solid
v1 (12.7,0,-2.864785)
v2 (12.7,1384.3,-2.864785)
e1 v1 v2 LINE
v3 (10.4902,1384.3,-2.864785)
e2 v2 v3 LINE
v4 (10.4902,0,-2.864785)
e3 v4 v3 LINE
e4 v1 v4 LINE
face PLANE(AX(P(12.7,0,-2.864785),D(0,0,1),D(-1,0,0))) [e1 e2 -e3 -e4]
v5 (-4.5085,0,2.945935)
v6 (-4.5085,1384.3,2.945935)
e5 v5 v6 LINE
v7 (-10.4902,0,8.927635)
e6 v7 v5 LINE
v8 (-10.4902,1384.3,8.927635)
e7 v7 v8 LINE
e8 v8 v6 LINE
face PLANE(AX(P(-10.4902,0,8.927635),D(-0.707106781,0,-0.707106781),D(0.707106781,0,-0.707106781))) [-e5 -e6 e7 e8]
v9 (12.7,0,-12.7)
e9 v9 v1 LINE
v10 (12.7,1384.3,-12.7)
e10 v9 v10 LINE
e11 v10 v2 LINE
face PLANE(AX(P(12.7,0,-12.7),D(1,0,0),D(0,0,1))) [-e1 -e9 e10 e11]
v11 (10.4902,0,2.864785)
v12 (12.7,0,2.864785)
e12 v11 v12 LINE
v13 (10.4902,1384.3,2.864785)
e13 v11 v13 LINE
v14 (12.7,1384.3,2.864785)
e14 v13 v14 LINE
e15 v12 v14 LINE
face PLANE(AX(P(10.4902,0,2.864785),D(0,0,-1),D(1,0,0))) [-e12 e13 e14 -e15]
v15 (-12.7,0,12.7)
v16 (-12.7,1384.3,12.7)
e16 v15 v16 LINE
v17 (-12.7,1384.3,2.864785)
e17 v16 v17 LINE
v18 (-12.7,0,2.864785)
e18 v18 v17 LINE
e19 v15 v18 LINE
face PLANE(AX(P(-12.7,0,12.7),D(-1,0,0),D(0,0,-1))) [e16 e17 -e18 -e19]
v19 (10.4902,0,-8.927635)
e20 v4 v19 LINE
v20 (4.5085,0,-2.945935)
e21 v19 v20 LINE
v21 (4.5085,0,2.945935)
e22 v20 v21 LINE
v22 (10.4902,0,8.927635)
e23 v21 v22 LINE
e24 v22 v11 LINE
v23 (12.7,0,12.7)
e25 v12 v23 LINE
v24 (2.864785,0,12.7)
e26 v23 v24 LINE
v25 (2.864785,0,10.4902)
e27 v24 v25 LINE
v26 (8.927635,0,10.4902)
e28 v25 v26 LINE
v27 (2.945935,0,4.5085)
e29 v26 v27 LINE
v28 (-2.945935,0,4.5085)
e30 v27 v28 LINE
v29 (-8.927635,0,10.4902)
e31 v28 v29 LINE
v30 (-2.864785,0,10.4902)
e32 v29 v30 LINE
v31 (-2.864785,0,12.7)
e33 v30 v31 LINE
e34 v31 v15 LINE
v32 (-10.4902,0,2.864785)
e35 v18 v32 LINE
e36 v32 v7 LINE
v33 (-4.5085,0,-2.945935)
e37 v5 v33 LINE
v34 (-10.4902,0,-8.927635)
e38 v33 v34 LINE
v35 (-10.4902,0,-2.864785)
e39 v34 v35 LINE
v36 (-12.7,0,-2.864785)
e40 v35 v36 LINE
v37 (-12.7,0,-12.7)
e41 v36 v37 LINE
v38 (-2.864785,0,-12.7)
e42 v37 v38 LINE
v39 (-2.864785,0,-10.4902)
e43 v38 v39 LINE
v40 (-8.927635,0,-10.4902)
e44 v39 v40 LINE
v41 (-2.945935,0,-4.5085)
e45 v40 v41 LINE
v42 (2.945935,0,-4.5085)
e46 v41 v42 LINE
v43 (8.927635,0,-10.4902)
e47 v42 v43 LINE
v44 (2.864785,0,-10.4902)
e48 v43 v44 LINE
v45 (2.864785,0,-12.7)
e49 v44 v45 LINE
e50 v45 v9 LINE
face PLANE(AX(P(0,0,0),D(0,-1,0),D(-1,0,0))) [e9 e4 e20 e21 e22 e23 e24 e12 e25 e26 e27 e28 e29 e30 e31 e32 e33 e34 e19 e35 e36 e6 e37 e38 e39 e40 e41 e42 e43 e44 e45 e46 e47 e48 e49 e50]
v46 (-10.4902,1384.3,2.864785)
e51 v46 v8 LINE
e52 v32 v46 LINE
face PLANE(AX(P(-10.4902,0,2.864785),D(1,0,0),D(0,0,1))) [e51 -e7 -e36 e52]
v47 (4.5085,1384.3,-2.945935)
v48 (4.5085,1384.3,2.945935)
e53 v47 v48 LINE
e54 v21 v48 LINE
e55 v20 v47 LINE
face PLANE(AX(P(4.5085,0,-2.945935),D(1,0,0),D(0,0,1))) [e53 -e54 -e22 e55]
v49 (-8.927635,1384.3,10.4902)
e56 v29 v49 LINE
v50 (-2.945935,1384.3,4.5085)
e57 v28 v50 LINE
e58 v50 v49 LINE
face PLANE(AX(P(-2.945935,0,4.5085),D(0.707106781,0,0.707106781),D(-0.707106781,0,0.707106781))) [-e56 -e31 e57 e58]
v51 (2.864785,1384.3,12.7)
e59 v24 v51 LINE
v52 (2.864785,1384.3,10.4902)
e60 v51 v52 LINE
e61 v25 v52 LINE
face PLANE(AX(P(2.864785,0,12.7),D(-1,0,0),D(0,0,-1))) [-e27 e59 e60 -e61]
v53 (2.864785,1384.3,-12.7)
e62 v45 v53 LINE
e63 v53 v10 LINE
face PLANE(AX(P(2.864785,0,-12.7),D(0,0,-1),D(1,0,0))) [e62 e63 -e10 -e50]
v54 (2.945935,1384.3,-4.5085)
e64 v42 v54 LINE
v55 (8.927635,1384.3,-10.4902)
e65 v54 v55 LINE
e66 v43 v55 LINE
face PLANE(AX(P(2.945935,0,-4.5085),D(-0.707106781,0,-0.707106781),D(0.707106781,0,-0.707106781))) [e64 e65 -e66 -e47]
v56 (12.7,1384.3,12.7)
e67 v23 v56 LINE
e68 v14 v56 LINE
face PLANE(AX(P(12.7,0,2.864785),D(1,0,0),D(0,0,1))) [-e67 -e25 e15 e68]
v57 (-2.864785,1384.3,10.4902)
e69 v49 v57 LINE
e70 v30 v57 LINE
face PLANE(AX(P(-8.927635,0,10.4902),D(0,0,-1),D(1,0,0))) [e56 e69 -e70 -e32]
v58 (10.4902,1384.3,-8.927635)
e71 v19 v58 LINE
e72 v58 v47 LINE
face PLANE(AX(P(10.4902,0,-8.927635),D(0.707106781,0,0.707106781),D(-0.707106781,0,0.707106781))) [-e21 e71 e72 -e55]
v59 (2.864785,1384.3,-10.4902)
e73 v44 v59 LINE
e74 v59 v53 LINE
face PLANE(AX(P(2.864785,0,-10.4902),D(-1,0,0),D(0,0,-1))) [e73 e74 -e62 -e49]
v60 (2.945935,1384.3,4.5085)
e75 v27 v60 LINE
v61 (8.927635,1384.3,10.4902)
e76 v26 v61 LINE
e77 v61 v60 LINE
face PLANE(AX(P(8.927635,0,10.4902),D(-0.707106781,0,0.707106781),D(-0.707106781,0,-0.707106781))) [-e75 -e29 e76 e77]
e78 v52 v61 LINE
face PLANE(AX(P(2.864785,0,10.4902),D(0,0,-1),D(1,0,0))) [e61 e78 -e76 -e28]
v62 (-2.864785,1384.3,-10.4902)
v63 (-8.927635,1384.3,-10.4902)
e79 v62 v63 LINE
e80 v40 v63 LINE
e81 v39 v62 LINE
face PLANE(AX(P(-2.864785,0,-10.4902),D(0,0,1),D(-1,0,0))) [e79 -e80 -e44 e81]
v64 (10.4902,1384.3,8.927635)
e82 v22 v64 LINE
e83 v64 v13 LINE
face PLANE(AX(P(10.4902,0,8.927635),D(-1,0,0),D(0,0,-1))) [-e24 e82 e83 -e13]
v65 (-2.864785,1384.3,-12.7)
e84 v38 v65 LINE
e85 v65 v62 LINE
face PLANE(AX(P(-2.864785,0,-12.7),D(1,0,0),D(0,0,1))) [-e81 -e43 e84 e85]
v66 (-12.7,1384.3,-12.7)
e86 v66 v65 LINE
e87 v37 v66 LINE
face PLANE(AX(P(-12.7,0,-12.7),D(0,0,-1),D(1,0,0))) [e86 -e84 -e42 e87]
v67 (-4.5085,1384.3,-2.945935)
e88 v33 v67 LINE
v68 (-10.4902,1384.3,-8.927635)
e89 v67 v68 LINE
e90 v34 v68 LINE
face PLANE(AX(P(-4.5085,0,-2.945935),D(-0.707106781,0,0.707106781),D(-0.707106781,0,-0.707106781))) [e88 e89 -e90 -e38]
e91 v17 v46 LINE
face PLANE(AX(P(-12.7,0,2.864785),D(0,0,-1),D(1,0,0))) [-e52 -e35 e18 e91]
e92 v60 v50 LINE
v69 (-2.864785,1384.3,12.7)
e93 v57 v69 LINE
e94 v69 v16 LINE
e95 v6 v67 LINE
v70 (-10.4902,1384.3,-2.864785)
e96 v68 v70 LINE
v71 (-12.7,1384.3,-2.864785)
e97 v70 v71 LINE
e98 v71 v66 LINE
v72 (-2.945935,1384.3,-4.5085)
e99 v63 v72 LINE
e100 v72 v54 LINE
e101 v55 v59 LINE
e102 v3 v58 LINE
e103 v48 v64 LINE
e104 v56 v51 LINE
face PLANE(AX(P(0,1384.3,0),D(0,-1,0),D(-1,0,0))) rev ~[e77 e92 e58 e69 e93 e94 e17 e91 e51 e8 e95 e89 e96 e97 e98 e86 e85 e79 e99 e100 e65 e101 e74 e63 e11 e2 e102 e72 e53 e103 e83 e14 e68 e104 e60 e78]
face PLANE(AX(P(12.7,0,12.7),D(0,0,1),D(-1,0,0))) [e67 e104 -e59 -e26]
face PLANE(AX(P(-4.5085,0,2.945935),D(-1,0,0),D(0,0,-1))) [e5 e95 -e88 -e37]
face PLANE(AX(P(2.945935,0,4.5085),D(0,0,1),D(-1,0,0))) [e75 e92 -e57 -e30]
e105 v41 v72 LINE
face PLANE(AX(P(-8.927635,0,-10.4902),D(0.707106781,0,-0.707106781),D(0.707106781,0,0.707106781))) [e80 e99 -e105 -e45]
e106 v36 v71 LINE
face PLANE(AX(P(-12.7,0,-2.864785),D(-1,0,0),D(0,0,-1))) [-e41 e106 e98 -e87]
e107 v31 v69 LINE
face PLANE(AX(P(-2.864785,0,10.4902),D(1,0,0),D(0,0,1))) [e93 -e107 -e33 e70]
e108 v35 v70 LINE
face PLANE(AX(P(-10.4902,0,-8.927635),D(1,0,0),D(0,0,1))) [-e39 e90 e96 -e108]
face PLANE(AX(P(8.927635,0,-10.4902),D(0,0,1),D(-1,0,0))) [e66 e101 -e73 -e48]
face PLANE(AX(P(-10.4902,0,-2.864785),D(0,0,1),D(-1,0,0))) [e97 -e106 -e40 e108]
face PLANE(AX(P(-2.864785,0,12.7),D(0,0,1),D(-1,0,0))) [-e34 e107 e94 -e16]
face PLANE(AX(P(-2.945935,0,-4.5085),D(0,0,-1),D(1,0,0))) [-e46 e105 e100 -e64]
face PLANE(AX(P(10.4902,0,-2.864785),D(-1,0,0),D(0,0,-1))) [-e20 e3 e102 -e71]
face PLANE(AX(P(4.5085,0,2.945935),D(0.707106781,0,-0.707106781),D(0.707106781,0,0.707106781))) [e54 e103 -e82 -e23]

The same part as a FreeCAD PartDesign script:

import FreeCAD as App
import Part
import Sketcher
Q = App.Units.Quantity


def add_polygon(sketch, points):
    """Adds a closed chain of lines whose ends are joined by coincident constraints."""
    first, n = sketch.GeometryCount, len(points)
    for a, b in zip(points, points[1:] + points[:1]):
        sketch.addGeometry(Part.LineSegment(App.Vector(*a, 0), App.Vector(*b, 0)), False)
    for i in range(n):
        sketch.addConstraint(Sketcher.Constraint("Coincident", first + i, 2, first + (i + 1) % n, 1))

doc = App.newDocument("Part")
body = doc.addObject("PartDesign::Body", "Body")

# Sketch on XZ plane
sketch1 = doc.addObject("Sketcher::SketchObject", "Sketch")
body.addObject(sketch1)
sketch1.AttachmentSupport = (doc.XZ_Plane, [""])
sketch1.MapMode = "FlatFace"
add_polygon(sketch1, [(-2.864785, -12.7), (-12.7, -12.7), (-12.7, -2.864785), (-10.4902, -2.864785), (-10.4902, -8.927635), (-4.5085, -2.945935), (-4.5085, 2.945935), (-10.4902, 8.927635), (-10.4902, 2.864785), (-12.7, 2.864785), (-12.7, 12.7), (-2.864785, 12.7), (-2.864785, 10.4902), (-8.927635, 10.4902), (-2.945935, 4.5085), (2.945935, 4.5085), (8.927635, 10.4902), (2.864785, 10.4902), (2.864785, 12.7), (12.7, 12.7), (12.7, 2.864785), (10.4902, 2.864785), (10.4902, 8.927635), (4.5085, 2.945935), (4.5085, -2.945935), (10.4902, -8.927635), (10.4902, -2.864785), (12.7, -2.864785), (12.7, -12.7), (2.864785, -12.7), (2.864785, -10.4902), (8.927635, -10.4902), (2.945935, -4.5085), (-2.945935, -4.5085), (-8.927635, -10.4902), (-2.864785, -10.4902)])  # lines 0-35
sketch1.addConstraint(Sketcher.Constraint("Horizontal", 0))
sketch1.addConstraint(Sketcher.Constraint("Vertical", 1))
sketch1.addConstraint(Sketcher.Constraint("Horizontal", 2))
sketch1.addConstraint(Sketcher.Constraint("Vertical", 3))
sketch1.addConstraint(Sketcher.Constraint("Vertical", 5))
sketch1.addConstraint(Sketcher.Constraint("Vertical", 7))
sketch1.addConstraint(Sketcher.Constraint("Horizontal", 8))
sketch1.addConstraint(Sketcher.Constraint("Vertical", 9))
sketch1.addConstraint(Sketcher.Constraint("Horizontal", 10))
sketch1.addConstraint(Sketcher.Constraint("Vertical", 11))
sketch1.addConstraint(Sketcher.Constraint("Horizontal", 12))
sketch1.addConstraint(Sketcher.Constraint("Horizontal", 14))
sketch1.addConstraint(Sketcher.Constraint("Horizontal", 16))
sketch1.addConstraint(Sketcher.Constraint("Vertical", 17))
sketch1.addConstraint(Sketcher.Constraint("Horizontal", 18))
sketch1.addConstraint(Sketcher.Constraint("Vertical", 19))
sketch1.addConstraint(Sketcher.Constraint("Horizontal", 20))
sketch1.addConstraint(Sketcher.Constraint("Vertical", 21))
sketch1.addConstraint(Sketcher.Constraint("Vertical", 23))
sketch1.addConstraint(Sketcher.Constraint("Vertical", 25))
sketch1.addConstraint(Sketcher.Constraint("Horizontal", 26))
sketch1.addConstraint(Sketcher.Constraint("Vertical", 27))
sketch1.addConstraint(Sketcher.Constraint("Horizontal", 28))
sketch1.addConstraint(Sketcher.Constraint("Vertical", 29))
sketch1.addConstraint(Sketcher.Constraint("Horizontal", 30))
sketch1.addConstraint(Sketcher.Constraint("Horizontal", 32))
sketch1.addConstraint(Sketcher.Constraint("Horizontal", 34))
sketch1.addConstraint(Sketcher.Constraint("Vertical", 35))
sketch1.addConstraint(Sketcher.Constraint("Symmetric", 0, 2, 18, 2, -1, 1))
sketch1.addConstraint(Sketcher.Constraint("Symmetric", 2, 2, 20, 2, -1, 1))
sketch1.addConstraint(Sketcher.Constraint("Symmetric", 4, 2, 22, 2, -1, 1))
sketch1.addConstraint(Sketcher.Constraint("Symmetric", 6, 2, 24, 2, -1, 1))
sketch1.addConstraint(Sketcher.Constraint("Symmetric", 8, 2, 26, 2, -1, 1))
sketch1.addConstraint(Sketcher.Constraint("Symmetric", 10, 2, 28, 2, -1, 1))
sketch1.addConstraint(Sketcher.Constraint("Symmetric", 12, 2, 30, 2, -1, 1))
sketch1.addConstraint(Sketcher.Constraint("Symmetric", 13, 2, 31, 2, -1, 1))
sketch1.addConstraint(Sketcher.Constraint("Symmetric", 15, 2, 33, 2, -1, 1))
sketch1.addConstraint(Sketcher.Constraint("Symmetric", 12, 2, 15, 2, -2))
sketch1.addConstraint(Sketcher.Constraint("Symmetric", 10, 2, 17, 2, -2))
sketch1.addConstraint(Sketcher.Constraint("Symmetric", 8, 2, 19, 2, -2))
sketch1.addConstraint(Sketcher.Constraint("Symmetric", 6, 2, 21, 2, -2))
sketch1.addConstraint(Sketcher.Constraint("Perpendicular", 4, 6))
sketch1.addConstraint(Sketcher.Constraint("Parallel", 6, 13))
sketch1.addConstraint(Sketcher.Constraint("Perpendicular", 13, 15))
sketch1.addConstraint(Sketcher.Constraint("Parallel", 15, 22))
sketch1.addConstraint(Sketcher.Constraint("Perpendicular", 22, 24))
sketch1.addConstraint(Sketcher.Constraint("Perpendicular", 31, 33))
sketch1.addConstraint(Sketcher.Constraint("Horizontal", 5, 2, 22, 2))
sketch1.addConstraint(Sketcher.Constraint("Vertical", 11, 2, 34, 2))
sketch1.addConstraint(Sketcher.Constraint("Equal", 28, 1))
sketch1.addConstraint(Sketcher.Constraint("Equal", 34, 3))
sketch1.addConstraint(Sketcher.Constraint("Equal", 32, 5))
sketch1.addConstraint(Sketcher.Constraint("Equal", 26, 11))
sketch1.addConstraint(Sketcher.Constraint("Equal", 6, 13))
sketch1.addConstraint(Sketcher.Constraint("DistanceX", 0, 2, -1, 1, Q("0.5 in")))
sketch1.addConstraint(Sketcher.Constraint("DistanceX", 2, 1, 2, 2, Q("0.087 in")))
sketch1.addConstraint(Sketcher.Constraint("DistanceX", 4, 2, 23, 2, Q("0.355 in")))
sketch1.addConstraint(Sketcher.Constraint("DistanceX", 12, 2, 12, 1, Q("6.06285 mm")))
sketch1.addConstraint(Sketcher.Constraint("DistanceX", 14, 1, 14, 2, Q("5.891871 mm")))
pad1 = doc.addObject("PartDesign::Pad", "Pad")
body.addObject(pad1)
pad1.Profile = sketch1
pad1.Length = Q("54.5 in")
pad1.Reversed = True

doc.recompute()
